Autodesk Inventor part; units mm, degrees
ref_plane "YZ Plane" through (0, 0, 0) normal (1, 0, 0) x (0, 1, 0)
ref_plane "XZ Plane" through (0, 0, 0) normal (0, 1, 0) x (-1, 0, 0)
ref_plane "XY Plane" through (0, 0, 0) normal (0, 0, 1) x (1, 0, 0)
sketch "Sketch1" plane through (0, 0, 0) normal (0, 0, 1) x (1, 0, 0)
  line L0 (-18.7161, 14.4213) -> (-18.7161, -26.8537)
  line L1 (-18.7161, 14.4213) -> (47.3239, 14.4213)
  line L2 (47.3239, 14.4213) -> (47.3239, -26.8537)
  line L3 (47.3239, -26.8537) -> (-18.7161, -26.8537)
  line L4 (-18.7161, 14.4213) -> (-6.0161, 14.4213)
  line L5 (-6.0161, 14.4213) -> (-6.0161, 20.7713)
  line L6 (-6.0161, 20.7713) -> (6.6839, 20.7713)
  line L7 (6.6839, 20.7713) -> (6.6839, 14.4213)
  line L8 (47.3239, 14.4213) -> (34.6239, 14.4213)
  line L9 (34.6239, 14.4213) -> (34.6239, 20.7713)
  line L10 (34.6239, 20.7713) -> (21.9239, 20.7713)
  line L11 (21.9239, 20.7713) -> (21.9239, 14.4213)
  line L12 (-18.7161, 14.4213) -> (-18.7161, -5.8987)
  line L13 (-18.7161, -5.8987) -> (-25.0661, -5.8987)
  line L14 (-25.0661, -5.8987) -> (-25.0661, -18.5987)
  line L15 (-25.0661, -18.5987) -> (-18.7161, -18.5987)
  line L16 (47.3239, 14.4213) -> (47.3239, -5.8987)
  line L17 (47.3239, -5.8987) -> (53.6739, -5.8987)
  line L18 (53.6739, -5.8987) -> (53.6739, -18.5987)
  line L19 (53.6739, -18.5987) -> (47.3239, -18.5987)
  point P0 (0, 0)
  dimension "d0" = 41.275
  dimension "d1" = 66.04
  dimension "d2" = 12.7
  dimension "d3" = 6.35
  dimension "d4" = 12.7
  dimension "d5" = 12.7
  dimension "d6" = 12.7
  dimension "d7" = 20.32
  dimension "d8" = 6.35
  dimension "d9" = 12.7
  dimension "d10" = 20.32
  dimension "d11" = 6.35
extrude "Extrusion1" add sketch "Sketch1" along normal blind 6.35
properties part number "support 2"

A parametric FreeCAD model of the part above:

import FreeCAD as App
import Part
import Sketcher
from FreeCAD import Vector
Q = App.Units.Quantity


def add_polygon(sketch, points):
    """Adds a closed chain of lines whose ends are joined by coincident constraints."""
    first, n = sketch.GeometryCount, len(points)
    for a, b in zip(points, points[1:] + points[:1]):
        sketch.addGeometry(Part.LineSegment(App.Vector(*a, 0), App.Vector(*b, 0)), False)
    for i in range(n):
        sketch.addConstraint(Sketcher.Constraint("Coincident", first + i, 2, first + (i + 1) % n, 1))

doc = App.newDocument("Part")
body = doc.addObject("PartDesign::Body", "Body")

# Sketch on XY plane
sketch1 = body.newObject("Sketcher::SketchObject", "Sketch")
sketch1.AttachmentSupport = (doc.getObject("XY_Plane"), [""])
sketch1.MapMode = "FlatFace"
add_polygon(sketch1, [(-6, 14), (-19, 14), (-19, -6), (-25, -6), (-25, -19), (-19, -19), (-19, -27), (47, -27), (47, -19), (54, -19), (54, -6), (47, -6), (47, 14), (35, 14), (35, 21), (22, 21), (22, 14), (7, 14), (7, 21), (-6, 21)])  # lines 0-19
sketch1.addConstraint([
    Sketcher.Constraint("Horizontal", 0),
    Sketcher.Constraint("Vertical", 1),
    Sketcher.Constraint("Horizontal", 2),
    Sketcher.Constraint("Vertical", 3),
    Sketcher.Constraint("Horizontal", 4),
    Sketcher.Constraint("Vertical", 5),
    Sketcher.Constraint("Horizontal", 6),
    Sketcher.Constraint("Vertical", 7),
    Sketcher.Constraint("Horizontal", 8),
    Sketcher.Constraint("Vertical", 9),
    Sketcher.Constraint("Horizontal", 10),
    Sketcher.Constraint("Vertical", 11),
    Sketcher.Constraint("Horizontal", 12),
    Sketcher.Constraint("Vertical", 13),
    Sketcher.Constraint("Horizontal", 14),
    Sketcher.Constraint("Vertical", 15),
    Sketcher.Constraint("Horizontal", 16),
    Sketcher.Constraint("Vertical", 17),
    Sketcher.Constraint("Horizontal", 18),
    Sketcher.Constraint("Vertical", 19),
    Sketcher.Constraint("Horizontal", 4, 2, 7, 2),
    Sketcher.Constraint("Horizontal", 2, 2, 9, 2),
    Sketcher.Constraint("Horizontal", 0, 2, 11, 2),
    Sketcher.Constraint("Horizontal", 12, 2, 15, 2),
    Sketcher.Constraint("Horizontal", 14, 2, 17, 2),
    Sketcher.Constraint("Vertical", 1, 2, 4, 2),
    Sketcher.Constraint("Vertical", 7, 2, 10, 2),
    Sketcher.Constraint("Equal", 4, 8),
    Sketcher.Constraint("Equal", 0, 12),
    Sketcher.Constraint("Equal", 12, 14),
    Sketcher.Constraint("Equal", 14, 18),
    Sketcher.Constraint("Equal", 18, 3),
    Sketcher.Constraint("Equal", 10, 13),
    Sketcher.Constraint("DistanceX", 0, 2, 0, 1, Q("0.5 in")),
    Sketcher.Constraint("DistanceX", 6, 1, 6, 2, Q("2.6 in")),
    Sketcher.Constraint("DistanceY", 1, 2, 1, 1, Q("0.8 in")),
    Sketcher.Constraint("DistanceX", 2, 2, 2, 1, Q("0.25 in")),
    Sketcher.Constraint("DistanceY", 5, 2, 0, 2, Q("1.625 in")),
    Sketcher.Constraint("DistanceX", 0, 2, -1, 1, 18.716),
    Sketcher.Constraint("DistanceY", -1, 1, 0, 2, 14.4213),
])
pad1 = body.newObject("PartDesign::Pad", "Pad")
pad1.Profile = sketch1
pad1.Length = Q("0.25 in")

doc.recompute()
